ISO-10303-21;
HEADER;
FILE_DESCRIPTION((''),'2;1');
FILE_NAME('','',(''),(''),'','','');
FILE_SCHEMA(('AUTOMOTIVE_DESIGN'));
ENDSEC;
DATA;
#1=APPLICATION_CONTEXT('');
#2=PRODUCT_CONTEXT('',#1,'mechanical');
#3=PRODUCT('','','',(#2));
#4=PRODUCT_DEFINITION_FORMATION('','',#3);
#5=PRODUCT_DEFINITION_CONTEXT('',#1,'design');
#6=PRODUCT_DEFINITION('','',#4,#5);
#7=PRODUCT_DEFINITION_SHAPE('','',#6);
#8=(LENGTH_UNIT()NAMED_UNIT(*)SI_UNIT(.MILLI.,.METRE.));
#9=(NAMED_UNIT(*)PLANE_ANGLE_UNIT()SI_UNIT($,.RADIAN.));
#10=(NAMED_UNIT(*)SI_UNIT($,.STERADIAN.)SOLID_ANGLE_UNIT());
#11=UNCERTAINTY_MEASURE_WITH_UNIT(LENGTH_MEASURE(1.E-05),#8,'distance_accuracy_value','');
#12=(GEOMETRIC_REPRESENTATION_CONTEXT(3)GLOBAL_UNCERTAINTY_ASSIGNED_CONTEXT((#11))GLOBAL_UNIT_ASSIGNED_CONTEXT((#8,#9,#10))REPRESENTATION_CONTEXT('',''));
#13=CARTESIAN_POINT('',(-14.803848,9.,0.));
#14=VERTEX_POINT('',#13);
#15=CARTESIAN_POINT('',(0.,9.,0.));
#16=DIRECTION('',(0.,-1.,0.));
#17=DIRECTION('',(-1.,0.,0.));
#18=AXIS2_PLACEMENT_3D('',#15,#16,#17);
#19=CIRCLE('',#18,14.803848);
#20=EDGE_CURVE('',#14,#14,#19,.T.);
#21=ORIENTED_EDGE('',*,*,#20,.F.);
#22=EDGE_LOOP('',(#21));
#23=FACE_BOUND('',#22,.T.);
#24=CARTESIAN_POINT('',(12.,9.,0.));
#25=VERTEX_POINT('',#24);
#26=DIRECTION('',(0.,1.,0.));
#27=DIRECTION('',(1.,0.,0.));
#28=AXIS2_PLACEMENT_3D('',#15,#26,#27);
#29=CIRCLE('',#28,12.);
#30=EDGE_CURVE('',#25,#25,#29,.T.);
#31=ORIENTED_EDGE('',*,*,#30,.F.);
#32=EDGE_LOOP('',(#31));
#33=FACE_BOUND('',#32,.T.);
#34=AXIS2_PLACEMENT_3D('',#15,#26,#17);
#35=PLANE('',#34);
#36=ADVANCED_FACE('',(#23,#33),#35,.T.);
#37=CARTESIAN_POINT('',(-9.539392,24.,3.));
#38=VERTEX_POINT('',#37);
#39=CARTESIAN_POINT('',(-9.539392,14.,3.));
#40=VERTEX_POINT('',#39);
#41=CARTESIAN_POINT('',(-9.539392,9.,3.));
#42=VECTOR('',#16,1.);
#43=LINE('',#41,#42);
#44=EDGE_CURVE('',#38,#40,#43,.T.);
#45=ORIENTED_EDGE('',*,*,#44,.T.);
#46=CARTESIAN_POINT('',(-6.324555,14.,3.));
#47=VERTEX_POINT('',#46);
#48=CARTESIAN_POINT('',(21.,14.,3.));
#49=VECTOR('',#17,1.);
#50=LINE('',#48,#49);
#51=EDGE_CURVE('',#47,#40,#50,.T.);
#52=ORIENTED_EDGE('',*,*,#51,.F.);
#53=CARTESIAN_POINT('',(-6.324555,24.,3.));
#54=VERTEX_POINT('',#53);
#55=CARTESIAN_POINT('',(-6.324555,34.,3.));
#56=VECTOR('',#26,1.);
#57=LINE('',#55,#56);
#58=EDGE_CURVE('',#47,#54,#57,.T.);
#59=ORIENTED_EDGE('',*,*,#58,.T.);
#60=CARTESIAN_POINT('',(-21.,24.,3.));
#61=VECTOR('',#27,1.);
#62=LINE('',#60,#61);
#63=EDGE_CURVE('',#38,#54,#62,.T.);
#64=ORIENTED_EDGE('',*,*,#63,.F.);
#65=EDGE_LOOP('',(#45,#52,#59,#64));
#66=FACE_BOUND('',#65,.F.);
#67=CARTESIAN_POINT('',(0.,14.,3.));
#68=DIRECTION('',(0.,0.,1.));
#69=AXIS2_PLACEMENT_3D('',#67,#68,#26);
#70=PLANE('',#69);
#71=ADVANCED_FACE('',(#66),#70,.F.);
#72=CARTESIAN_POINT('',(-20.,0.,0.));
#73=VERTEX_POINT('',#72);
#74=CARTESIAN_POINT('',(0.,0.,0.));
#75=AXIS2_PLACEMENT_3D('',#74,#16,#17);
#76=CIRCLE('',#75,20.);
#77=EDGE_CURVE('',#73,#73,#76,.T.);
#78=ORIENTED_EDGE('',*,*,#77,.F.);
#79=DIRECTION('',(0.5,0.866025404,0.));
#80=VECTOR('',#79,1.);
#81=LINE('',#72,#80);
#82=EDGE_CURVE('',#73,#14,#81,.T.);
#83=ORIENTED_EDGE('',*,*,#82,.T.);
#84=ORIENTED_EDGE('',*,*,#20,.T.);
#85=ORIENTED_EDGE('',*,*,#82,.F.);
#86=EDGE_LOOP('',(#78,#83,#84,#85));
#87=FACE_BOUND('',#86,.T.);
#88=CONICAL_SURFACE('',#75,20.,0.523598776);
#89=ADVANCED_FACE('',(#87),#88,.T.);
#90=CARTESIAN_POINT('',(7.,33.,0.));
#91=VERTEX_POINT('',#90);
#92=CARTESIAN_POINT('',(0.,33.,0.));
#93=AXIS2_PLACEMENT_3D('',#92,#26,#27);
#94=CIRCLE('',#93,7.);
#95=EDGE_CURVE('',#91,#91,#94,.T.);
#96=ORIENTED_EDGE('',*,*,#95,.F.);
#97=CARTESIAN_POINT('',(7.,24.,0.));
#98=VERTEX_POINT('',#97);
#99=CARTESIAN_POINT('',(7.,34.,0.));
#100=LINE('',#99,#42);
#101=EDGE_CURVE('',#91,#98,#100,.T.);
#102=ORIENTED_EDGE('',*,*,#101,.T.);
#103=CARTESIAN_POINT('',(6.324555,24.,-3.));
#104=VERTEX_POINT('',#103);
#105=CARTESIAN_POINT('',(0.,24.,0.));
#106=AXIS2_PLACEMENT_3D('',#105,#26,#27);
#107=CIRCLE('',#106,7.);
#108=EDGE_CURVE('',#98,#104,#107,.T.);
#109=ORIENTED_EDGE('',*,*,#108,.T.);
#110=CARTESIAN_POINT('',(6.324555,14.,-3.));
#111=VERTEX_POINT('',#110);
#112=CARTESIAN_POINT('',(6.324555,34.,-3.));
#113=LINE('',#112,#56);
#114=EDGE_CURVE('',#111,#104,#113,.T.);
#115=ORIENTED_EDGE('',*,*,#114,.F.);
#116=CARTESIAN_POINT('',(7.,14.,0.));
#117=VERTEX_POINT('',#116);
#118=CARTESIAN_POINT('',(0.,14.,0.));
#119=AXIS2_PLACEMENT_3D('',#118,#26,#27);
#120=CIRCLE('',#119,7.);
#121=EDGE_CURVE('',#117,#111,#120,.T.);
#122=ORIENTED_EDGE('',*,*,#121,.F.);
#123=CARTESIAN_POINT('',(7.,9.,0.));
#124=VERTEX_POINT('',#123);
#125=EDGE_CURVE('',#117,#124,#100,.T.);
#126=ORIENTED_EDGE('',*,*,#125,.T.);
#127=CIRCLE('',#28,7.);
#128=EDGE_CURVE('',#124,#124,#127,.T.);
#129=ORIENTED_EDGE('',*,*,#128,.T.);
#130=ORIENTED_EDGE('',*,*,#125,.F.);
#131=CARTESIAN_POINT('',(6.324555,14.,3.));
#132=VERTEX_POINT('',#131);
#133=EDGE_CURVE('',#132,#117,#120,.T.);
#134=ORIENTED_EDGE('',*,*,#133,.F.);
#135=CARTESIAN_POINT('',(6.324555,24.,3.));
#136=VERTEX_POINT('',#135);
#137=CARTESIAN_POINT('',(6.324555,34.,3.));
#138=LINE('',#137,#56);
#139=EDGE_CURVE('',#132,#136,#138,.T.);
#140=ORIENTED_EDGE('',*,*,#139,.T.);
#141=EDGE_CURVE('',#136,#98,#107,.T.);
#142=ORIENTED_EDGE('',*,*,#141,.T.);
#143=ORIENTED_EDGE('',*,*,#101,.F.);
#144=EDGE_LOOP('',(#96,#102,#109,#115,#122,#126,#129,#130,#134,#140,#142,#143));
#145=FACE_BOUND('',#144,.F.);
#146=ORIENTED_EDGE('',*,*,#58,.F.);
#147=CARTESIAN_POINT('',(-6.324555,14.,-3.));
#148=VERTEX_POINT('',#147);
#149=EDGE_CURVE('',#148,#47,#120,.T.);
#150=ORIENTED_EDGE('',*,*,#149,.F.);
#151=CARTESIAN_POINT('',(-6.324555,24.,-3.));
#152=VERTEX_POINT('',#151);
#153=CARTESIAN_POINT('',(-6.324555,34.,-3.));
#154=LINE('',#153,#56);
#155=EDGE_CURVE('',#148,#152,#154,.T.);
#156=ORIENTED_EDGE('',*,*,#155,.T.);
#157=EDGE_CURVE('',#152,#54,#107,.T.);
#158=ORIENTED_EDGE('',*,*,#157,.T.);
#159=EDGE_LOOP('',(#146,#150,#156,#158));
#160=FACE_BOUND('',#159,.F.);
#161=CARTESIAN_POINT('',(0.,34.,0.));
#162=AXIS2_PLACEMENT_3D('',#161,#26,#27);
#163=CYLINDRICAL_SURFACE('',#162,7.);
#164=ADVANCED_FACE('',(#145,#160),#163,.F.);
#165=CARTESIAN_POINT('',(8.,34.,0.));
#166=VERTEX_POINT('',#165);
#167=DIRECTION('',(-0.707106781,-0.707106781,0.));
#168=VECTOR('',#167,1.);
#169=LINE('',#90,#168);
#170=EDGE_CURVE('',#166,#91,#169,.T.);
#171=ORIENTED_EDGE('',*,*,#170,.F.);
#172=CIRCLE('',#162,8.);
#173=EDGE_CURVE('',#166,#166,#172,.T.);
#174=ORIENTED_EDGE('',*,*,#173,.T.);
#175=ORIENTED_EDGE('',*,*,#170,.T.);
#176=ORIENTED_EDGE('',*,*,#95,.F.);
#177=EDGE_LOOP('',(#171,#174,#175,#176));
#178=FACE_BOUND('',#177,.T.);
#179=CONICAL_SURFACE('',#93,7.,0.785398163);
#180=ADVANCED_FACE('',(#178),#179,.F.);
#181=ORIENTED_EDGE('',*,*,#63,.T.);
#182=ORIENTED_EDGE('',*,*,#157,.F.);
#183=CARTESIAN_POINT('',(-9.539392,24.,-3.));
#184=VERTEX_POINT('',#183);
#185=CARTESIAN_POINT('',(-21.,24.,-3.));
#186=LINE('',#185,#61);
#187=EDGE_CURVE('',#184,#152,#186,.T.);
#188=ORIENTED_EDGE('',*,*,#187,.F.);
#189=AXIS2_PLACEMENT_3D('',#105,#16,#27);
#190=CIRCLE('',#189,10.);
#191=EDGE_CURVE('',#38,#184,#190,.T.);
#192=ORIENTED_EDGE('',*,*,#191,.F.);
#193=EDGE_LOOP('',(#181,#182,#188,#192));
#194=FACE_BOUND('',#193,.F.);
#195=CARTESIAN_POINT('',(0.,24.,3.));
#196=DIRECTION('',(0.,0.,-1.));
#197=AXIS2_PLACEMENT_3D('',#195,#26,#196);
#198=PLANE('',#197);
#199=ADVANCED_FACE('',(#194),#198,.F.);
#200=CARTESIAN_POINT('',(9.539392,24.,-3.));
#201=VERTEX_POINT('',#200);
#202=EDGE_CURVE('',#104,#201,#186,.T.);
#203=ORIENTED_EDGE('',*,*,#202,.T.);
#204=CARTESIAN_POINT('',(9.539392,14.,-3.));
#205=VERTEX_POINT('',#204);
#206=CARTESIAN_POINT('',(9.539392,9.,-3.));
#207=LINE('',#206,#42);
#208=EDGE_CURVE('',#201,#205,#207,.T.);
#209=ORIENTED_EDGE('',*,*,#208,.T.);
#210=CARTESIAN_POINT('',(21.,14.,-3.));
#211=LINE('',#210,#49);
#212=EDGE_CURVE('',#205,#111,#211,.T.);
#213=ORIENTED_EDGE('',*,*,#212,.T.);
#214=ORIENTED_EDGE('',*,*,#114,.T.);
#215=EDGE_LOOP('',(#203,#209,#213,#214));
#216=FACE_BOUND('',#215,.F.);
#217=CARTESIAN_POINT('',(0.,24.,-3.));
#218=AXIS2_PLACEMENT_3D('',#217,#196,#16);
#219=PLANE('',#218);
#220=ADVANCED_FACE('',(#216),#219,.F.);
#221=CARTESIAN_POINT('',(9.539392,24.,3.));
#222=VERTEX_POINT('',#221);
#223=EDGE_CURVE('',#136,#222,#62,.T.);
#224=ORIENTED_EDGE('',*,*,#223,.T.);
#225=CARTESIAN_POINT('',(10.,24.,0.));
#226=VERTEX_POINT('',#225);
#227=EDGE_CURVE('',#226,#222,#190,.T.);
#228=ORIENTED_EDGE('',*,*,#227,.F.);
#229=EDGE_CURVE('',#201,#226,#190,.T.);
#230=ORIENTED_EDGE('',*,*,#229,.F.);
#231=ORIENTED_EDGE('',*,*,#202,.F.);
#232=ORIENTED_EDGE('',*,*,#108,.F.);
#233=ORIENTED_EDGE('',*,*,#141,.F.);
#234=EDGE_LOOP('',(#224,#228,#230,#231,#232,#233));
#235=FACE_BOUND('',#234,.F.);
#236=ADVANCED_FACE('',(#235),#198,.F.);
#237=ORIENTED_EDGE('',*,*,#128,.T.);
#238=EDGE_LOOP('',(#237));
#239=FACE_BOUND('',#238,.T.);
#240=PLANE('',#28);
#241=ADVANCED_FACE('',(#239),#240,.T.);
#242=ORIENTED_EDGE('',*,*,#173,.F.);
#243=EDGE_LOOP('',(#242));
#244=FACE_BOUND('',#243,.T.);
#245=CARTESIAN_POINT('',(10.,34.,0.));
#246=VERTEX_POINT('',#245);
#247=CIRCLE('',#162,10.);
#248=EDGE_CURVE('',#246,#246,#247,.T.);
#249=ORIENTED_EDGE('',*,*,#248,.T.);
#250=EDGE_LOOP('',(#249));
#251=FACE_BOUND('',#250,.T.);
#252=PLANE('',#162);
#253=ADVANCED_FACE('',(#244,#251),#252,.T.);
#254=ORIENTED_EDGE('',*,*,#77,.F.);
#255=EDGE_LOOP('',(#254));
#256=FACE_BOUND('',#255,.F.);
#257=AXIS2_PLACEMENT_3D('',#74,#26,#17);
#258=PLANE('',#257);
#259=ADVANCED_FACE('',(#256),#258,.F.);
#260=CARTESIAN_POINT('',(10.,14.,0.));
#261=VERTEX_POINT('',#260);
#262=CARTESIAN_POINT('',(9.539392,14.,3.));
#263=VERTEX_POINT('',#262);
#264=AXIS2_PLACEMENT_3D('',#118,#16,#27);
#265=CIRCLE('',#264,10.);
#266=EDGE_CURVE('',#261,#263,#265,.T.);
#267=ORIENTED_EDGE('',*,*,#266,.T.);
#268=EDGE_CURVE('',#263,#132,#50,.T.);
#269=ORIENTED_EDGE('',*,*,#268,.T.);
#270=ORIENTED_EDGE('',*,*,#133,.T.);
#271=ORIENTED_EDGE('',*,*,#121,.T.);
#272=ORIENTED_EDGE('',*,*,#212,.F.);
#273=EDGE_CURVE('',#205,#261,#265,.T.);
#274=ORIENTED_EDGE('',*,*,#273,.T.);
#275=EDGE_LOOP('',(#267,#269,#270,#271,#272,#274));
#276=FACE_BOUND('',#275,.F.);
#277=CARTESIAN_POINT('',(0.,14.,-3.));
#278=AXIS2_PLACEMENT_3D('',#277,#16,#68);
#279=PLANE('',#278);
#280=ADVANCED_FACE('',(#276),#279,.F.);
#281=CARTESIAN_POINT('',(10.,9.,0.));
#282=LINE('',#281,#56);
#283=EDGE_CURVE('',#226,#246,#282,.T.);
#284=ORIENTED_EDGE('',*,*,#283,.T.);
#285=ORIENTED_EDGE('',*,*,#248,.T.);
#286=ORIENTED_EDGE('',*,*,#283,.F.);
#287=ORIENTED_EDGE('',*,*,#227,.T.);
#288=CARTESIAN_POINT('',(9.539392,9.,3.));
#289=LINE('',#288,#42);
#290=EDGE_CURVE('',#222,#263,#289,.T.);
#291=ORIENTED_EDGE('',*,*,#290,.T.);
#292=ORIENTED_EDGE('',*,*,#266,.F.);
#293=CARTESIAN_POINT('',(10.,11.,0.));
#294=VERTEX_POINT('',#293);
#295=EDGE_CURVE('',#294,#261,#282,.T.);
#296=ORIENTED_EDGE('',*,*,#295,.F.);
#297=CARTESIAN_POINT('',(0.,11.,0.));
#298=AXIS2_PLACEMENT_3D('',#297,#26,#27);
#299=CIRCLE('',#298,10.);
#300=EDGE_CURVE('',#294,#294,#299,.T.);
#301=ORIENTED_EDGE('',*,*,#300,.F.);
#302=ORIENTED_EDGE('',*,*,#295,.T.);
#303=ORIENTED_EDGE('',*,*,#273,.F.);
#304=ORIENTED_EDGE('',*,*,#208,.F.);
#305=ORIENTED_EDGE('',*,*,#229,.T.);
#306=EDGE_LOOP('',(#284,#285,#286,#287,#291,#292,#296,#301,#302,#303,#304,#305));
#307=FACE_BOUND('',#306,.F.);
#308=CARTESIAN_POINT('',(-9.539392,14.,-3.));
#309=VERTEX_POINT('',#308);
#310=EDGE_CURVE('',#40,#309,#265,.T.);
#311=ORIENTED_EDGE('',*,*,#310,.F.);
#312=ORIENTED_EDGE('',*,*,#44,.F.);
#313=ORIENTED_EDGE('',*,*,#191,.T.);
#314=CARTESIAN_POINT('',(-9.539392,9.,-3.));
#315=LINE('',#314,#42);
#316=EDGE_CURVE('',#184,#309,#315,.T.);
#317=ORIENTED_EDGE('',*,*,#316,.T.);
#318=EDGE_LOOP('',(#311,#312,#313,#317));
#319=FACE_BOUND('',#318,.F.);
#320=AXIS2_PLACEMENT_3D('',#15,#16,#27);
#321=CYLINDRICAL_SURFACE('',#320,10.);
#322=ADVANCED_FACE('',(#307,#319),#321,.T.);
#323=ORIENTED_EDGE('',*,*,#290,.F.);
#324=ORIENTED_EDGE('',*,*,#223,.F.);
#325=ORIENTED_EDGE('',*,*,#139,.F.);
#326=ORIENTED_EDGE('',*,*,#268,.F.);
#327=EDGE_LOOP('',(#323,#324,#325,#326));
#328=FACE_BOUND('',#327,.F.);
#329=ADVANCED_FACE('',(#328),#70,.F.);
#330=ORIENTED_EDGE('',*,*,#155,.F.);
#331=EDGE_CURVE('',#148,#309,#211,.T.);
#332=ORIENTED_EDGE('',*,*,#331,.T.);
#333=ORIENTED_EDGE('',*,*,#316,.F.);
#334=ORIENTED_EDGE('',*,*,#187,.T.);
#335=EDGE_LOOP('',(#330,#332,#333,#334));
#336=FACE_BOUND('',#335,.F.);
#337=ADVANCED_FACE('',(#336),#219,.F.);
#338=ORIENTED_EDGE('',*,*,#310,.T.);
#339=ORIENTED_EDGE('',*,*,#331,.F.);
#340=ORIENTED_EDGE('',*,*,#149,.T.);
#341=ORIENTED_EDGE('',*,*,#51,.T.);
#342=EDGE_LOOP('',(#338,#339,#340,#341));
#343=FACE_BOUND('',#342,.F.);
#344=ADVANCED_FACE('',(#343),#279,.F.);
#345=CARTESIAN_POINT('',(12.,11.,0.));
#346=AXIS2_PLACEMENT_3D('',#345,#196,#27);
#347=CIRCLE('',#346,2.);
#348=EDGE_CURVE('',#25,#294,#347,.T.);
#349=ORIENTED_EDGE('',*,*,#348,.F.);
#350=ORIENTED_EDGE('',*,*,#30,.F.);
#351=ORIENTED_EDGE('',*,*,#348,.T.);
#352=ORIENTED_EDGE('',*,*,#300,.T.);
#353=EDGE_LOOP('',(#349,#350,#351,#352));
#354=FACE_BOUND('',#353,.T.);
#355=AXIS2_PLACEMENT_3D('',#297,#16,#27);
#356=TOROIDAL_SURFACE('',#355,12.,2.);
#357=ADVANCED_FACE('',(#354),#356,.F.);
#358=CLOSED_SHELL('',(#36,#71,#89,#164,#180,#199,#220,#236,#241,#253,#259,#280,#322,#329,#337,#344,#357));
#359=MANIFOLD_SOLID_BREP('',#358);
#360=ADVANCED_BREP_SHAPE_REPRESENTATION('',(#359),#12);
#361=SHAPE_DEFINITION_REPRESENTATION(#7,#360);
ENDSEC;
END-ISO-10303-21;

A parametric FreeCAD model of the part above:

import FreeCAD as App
import Part
import Sketcher
from FreeCAD import Vector
Q = App.Units.Quantity


def edges_at(feature, points):
    """Names of the edges that pass closest to the given points."""
    edges = feature.Shape.Edges
    near = lambda p: min(range(len(edges)), key=lambda i: edges[i].distToShape(Part.Vertex(*p))[0])
    return sorted({f"Edge{near(p) + 1}" for p in points})


def add_polygon(sketch, points):
    """Adds a closed chain of lines whose ends are joined by coincident constraints."""
    first, n = sketch.GeometryCount, len(points)
    for a, b in zip(points, points[1:] + points[:1]):
        sketch.addGeometry(Part.LineSegment(App.Vector(*a, 0), App.Vector(*b, 0)), False)
    for i in range(n):
        sketch.addConstraint(Sketcher.Constraint("Coincident", first + i, 2, first + (i + 1) % n, 1))

doc = App.newDocument("Part")
params = doc.addObject("Spreadsheet::Sheet", "Params")
for row, (alias, value) in enumerate([
    ("sketch1_diameter", "40 mm"),
    ("pad1_length", "9 mm"),
    ("pad1_taper", "-30 deg"),
    ("sketch2_diameter", "20 mm"),
    ("pad2_length", "25 mm"),
    ("sketch3_diameter", "14 mm"),
    ("pocket1_length", "25 mm"),
    ("sketch4_width", "10 mm"),
    ("sketch4_height", "6 mm"),
    ("fillet_radius", "2 mm"),
    ("chamfer_size", "1 mm"),
], start=1):
    params.set(f"A{row}", alias)
    params.set(f"B{row}", "=" + value)
    params.setAlias(f"B{row}", alias)

body = doc.addObject("PartDesign::Body", "Body")

# Sketch on XZ plane
sketch1 = doc.addObject("Sketcher::SketchObject", "Sketch")
body.addObject(sketch1)
sketch1.AttachmentSupport = (doc.XZ_Plane, [""])
sketch1.MapMode = "FlatFace"
sketch1.addGeometry(Part.Circle(Vector(0, 0, 0), Vector(0, 0, 1), 20), False)
sketch1.addConstraint(Sketcher.Constraint("Coincident", 0, 3, -1, 1))
sketch1.addConstraint(Sketcher.Constraint("Diameter", 0, Q("40 mm")))
sketch1.setExpression("Constraints[1]", "Params.sketch1_diameter")
pad1 = doc.addObject("PartDesign::Pad", "Pad")
body.addObject(pad1)
pad1.Profile = sketch1
pad1.setExpression("Length", "Params.pad1_length")
pad1.Reversed = True
pad1.setExpression("TaperAngle", "Params.pad1_taper")

# Sketch on XZ plane
sketch2 = doc.addObject("Sketcher::SketchObject", "Sketch001")
body.addObject(sketch2)
sketch2.AttachmentSupport = (doc.XZ_Plane, [""])
sketch2.MapMode = "FlatFace"
sketch2.AttachmentOffset = App.Placement(Vector(0, 0, -9), App.Rotation())
sketch2.addGeometry(Part.Circle(Vector(0, 0, 0), Vector(0, 0, 1), 10), False)
sketch2.addConstraint(Sketcher.Constraint("Coincident", 0, 3, -1, 1))
sketch2.addConstraint(Sketcher.Constraint("Diameter", 0, Q("20 mm")))
sketch2.setExpression("Constraints[1]", "Params.sketch2_diameter")
pad2 = doc.addObject("PartDesign::Pad", "Pad001")
body.addObject(pad2)
pad2.Profile = sketch2
pad2.setExpression("Length", "Params.pad2_length")
pad2.Reversed = True

# Sketch on XZ plane
sketch3 = doc.addObject("Sketcher::SketchObject", "Sketch002")
body.addObject(sketch3)
sketch3.AttachmentSupport = (doc.XZ_Plane, [""])
sketch3.MapMode = "FlatFace"
sketch3.AttachmentOffset = App.Placement(Vector(0, 0, -34), App.Rotation())
sketch3.addGeometry(Part.Circle(Vector(0, 0, 0), Vector(0, 0, 1), 7), False)
sketch3.addConstraint(Sketcher.Constraint("Coincident", 0, 3, -1, 1))
sketch3.addConstraint(Sketcher.Constraint("Diameter", 0, Q("14 mm")))
sketch3.setExpression("Constraints[1]", "Params.sketch3_diameter")
pocket1 = doc.addObject("PartDesign::Pocket", "Pocket")
body.addObject(pocket1)
pocket1.Profile = sketch3
pocket1.setExpression("Length", "Params.pocket1_length")
pocket1.Reversed = True

# Sketch on YZ plane
sketch4 = doc.addObject("Sketcher::SketchObject", "Sketch003")
body.addObject(sketch4)
sketch4.AttachmentSupport = (doc.YZ_Plane, [""])
sketch4.MapMode = "FlatFace"
add_polygon(sketch4, [(14, -3), (24, -3), (24, 3), (14, 3)])  # lines 0-3
sketch4.addConstraint(Sketcher.Constraint("Horizontal", 0))
sketch4.addConstraint(Sketcher.Constraint("Vertical", 1))
sketch4.addConstraint(Sketcher.Constraint("Horizontal", 2))
sketch4.addConstraint(Sketcher.Constraint("Vertical", 3))
sketch4.addConstraint(Sketcher.Constraint("DistanceX", 0, 1, 0, 2, Q("10 mm")))
sketch4.addConstraint(Sketcher.Constraint("DistanceY", 1, 1, 1, 2, Q("6 mm")))
sketch4.addConstraint(Sketcher.Constraint("DistanceY", 0, 2, -1, 1, Q("3 mm")))
sketch4.addConstraint(Sketcher.Constraint("DistanceX", -1, 1, 0, 2, Q("24 mm")))
sketch4.setExpression("Constraints[8]", "Params.sketch4_width")
sketch4.setExpression("Constraints[9]", "Params.sketch4_height")
pocket2 = doc.addObject("PartDesign::Pocket", "Pocket001")
body.addObject(pocket2)
pocket2.Profile = sketch4
pocket2.Type = "ThroughAll"
pocket2.Midplane = True
doc.recompute()

fillet = doc.addObject("PartDesign::Fillet", "Fillet")
body.addObject(fillet)
fillet.Base = (pocket2, edges_at(pocket2, [(-10, 9, 0)]))
fillet.setExpression("Radius", "Params.fillet_radius")
doc.recompute()

chamfer = doc.addObject("PartDesign::Chamfer", "Chamfer")
body.addObject(chamfer)
chamfer.Base = (fillet, edges_at(fillet, [(-7, 34, 0)]))
chamfer.setExpression("Size", "Params.chamfer_size")

doc.recompute()
